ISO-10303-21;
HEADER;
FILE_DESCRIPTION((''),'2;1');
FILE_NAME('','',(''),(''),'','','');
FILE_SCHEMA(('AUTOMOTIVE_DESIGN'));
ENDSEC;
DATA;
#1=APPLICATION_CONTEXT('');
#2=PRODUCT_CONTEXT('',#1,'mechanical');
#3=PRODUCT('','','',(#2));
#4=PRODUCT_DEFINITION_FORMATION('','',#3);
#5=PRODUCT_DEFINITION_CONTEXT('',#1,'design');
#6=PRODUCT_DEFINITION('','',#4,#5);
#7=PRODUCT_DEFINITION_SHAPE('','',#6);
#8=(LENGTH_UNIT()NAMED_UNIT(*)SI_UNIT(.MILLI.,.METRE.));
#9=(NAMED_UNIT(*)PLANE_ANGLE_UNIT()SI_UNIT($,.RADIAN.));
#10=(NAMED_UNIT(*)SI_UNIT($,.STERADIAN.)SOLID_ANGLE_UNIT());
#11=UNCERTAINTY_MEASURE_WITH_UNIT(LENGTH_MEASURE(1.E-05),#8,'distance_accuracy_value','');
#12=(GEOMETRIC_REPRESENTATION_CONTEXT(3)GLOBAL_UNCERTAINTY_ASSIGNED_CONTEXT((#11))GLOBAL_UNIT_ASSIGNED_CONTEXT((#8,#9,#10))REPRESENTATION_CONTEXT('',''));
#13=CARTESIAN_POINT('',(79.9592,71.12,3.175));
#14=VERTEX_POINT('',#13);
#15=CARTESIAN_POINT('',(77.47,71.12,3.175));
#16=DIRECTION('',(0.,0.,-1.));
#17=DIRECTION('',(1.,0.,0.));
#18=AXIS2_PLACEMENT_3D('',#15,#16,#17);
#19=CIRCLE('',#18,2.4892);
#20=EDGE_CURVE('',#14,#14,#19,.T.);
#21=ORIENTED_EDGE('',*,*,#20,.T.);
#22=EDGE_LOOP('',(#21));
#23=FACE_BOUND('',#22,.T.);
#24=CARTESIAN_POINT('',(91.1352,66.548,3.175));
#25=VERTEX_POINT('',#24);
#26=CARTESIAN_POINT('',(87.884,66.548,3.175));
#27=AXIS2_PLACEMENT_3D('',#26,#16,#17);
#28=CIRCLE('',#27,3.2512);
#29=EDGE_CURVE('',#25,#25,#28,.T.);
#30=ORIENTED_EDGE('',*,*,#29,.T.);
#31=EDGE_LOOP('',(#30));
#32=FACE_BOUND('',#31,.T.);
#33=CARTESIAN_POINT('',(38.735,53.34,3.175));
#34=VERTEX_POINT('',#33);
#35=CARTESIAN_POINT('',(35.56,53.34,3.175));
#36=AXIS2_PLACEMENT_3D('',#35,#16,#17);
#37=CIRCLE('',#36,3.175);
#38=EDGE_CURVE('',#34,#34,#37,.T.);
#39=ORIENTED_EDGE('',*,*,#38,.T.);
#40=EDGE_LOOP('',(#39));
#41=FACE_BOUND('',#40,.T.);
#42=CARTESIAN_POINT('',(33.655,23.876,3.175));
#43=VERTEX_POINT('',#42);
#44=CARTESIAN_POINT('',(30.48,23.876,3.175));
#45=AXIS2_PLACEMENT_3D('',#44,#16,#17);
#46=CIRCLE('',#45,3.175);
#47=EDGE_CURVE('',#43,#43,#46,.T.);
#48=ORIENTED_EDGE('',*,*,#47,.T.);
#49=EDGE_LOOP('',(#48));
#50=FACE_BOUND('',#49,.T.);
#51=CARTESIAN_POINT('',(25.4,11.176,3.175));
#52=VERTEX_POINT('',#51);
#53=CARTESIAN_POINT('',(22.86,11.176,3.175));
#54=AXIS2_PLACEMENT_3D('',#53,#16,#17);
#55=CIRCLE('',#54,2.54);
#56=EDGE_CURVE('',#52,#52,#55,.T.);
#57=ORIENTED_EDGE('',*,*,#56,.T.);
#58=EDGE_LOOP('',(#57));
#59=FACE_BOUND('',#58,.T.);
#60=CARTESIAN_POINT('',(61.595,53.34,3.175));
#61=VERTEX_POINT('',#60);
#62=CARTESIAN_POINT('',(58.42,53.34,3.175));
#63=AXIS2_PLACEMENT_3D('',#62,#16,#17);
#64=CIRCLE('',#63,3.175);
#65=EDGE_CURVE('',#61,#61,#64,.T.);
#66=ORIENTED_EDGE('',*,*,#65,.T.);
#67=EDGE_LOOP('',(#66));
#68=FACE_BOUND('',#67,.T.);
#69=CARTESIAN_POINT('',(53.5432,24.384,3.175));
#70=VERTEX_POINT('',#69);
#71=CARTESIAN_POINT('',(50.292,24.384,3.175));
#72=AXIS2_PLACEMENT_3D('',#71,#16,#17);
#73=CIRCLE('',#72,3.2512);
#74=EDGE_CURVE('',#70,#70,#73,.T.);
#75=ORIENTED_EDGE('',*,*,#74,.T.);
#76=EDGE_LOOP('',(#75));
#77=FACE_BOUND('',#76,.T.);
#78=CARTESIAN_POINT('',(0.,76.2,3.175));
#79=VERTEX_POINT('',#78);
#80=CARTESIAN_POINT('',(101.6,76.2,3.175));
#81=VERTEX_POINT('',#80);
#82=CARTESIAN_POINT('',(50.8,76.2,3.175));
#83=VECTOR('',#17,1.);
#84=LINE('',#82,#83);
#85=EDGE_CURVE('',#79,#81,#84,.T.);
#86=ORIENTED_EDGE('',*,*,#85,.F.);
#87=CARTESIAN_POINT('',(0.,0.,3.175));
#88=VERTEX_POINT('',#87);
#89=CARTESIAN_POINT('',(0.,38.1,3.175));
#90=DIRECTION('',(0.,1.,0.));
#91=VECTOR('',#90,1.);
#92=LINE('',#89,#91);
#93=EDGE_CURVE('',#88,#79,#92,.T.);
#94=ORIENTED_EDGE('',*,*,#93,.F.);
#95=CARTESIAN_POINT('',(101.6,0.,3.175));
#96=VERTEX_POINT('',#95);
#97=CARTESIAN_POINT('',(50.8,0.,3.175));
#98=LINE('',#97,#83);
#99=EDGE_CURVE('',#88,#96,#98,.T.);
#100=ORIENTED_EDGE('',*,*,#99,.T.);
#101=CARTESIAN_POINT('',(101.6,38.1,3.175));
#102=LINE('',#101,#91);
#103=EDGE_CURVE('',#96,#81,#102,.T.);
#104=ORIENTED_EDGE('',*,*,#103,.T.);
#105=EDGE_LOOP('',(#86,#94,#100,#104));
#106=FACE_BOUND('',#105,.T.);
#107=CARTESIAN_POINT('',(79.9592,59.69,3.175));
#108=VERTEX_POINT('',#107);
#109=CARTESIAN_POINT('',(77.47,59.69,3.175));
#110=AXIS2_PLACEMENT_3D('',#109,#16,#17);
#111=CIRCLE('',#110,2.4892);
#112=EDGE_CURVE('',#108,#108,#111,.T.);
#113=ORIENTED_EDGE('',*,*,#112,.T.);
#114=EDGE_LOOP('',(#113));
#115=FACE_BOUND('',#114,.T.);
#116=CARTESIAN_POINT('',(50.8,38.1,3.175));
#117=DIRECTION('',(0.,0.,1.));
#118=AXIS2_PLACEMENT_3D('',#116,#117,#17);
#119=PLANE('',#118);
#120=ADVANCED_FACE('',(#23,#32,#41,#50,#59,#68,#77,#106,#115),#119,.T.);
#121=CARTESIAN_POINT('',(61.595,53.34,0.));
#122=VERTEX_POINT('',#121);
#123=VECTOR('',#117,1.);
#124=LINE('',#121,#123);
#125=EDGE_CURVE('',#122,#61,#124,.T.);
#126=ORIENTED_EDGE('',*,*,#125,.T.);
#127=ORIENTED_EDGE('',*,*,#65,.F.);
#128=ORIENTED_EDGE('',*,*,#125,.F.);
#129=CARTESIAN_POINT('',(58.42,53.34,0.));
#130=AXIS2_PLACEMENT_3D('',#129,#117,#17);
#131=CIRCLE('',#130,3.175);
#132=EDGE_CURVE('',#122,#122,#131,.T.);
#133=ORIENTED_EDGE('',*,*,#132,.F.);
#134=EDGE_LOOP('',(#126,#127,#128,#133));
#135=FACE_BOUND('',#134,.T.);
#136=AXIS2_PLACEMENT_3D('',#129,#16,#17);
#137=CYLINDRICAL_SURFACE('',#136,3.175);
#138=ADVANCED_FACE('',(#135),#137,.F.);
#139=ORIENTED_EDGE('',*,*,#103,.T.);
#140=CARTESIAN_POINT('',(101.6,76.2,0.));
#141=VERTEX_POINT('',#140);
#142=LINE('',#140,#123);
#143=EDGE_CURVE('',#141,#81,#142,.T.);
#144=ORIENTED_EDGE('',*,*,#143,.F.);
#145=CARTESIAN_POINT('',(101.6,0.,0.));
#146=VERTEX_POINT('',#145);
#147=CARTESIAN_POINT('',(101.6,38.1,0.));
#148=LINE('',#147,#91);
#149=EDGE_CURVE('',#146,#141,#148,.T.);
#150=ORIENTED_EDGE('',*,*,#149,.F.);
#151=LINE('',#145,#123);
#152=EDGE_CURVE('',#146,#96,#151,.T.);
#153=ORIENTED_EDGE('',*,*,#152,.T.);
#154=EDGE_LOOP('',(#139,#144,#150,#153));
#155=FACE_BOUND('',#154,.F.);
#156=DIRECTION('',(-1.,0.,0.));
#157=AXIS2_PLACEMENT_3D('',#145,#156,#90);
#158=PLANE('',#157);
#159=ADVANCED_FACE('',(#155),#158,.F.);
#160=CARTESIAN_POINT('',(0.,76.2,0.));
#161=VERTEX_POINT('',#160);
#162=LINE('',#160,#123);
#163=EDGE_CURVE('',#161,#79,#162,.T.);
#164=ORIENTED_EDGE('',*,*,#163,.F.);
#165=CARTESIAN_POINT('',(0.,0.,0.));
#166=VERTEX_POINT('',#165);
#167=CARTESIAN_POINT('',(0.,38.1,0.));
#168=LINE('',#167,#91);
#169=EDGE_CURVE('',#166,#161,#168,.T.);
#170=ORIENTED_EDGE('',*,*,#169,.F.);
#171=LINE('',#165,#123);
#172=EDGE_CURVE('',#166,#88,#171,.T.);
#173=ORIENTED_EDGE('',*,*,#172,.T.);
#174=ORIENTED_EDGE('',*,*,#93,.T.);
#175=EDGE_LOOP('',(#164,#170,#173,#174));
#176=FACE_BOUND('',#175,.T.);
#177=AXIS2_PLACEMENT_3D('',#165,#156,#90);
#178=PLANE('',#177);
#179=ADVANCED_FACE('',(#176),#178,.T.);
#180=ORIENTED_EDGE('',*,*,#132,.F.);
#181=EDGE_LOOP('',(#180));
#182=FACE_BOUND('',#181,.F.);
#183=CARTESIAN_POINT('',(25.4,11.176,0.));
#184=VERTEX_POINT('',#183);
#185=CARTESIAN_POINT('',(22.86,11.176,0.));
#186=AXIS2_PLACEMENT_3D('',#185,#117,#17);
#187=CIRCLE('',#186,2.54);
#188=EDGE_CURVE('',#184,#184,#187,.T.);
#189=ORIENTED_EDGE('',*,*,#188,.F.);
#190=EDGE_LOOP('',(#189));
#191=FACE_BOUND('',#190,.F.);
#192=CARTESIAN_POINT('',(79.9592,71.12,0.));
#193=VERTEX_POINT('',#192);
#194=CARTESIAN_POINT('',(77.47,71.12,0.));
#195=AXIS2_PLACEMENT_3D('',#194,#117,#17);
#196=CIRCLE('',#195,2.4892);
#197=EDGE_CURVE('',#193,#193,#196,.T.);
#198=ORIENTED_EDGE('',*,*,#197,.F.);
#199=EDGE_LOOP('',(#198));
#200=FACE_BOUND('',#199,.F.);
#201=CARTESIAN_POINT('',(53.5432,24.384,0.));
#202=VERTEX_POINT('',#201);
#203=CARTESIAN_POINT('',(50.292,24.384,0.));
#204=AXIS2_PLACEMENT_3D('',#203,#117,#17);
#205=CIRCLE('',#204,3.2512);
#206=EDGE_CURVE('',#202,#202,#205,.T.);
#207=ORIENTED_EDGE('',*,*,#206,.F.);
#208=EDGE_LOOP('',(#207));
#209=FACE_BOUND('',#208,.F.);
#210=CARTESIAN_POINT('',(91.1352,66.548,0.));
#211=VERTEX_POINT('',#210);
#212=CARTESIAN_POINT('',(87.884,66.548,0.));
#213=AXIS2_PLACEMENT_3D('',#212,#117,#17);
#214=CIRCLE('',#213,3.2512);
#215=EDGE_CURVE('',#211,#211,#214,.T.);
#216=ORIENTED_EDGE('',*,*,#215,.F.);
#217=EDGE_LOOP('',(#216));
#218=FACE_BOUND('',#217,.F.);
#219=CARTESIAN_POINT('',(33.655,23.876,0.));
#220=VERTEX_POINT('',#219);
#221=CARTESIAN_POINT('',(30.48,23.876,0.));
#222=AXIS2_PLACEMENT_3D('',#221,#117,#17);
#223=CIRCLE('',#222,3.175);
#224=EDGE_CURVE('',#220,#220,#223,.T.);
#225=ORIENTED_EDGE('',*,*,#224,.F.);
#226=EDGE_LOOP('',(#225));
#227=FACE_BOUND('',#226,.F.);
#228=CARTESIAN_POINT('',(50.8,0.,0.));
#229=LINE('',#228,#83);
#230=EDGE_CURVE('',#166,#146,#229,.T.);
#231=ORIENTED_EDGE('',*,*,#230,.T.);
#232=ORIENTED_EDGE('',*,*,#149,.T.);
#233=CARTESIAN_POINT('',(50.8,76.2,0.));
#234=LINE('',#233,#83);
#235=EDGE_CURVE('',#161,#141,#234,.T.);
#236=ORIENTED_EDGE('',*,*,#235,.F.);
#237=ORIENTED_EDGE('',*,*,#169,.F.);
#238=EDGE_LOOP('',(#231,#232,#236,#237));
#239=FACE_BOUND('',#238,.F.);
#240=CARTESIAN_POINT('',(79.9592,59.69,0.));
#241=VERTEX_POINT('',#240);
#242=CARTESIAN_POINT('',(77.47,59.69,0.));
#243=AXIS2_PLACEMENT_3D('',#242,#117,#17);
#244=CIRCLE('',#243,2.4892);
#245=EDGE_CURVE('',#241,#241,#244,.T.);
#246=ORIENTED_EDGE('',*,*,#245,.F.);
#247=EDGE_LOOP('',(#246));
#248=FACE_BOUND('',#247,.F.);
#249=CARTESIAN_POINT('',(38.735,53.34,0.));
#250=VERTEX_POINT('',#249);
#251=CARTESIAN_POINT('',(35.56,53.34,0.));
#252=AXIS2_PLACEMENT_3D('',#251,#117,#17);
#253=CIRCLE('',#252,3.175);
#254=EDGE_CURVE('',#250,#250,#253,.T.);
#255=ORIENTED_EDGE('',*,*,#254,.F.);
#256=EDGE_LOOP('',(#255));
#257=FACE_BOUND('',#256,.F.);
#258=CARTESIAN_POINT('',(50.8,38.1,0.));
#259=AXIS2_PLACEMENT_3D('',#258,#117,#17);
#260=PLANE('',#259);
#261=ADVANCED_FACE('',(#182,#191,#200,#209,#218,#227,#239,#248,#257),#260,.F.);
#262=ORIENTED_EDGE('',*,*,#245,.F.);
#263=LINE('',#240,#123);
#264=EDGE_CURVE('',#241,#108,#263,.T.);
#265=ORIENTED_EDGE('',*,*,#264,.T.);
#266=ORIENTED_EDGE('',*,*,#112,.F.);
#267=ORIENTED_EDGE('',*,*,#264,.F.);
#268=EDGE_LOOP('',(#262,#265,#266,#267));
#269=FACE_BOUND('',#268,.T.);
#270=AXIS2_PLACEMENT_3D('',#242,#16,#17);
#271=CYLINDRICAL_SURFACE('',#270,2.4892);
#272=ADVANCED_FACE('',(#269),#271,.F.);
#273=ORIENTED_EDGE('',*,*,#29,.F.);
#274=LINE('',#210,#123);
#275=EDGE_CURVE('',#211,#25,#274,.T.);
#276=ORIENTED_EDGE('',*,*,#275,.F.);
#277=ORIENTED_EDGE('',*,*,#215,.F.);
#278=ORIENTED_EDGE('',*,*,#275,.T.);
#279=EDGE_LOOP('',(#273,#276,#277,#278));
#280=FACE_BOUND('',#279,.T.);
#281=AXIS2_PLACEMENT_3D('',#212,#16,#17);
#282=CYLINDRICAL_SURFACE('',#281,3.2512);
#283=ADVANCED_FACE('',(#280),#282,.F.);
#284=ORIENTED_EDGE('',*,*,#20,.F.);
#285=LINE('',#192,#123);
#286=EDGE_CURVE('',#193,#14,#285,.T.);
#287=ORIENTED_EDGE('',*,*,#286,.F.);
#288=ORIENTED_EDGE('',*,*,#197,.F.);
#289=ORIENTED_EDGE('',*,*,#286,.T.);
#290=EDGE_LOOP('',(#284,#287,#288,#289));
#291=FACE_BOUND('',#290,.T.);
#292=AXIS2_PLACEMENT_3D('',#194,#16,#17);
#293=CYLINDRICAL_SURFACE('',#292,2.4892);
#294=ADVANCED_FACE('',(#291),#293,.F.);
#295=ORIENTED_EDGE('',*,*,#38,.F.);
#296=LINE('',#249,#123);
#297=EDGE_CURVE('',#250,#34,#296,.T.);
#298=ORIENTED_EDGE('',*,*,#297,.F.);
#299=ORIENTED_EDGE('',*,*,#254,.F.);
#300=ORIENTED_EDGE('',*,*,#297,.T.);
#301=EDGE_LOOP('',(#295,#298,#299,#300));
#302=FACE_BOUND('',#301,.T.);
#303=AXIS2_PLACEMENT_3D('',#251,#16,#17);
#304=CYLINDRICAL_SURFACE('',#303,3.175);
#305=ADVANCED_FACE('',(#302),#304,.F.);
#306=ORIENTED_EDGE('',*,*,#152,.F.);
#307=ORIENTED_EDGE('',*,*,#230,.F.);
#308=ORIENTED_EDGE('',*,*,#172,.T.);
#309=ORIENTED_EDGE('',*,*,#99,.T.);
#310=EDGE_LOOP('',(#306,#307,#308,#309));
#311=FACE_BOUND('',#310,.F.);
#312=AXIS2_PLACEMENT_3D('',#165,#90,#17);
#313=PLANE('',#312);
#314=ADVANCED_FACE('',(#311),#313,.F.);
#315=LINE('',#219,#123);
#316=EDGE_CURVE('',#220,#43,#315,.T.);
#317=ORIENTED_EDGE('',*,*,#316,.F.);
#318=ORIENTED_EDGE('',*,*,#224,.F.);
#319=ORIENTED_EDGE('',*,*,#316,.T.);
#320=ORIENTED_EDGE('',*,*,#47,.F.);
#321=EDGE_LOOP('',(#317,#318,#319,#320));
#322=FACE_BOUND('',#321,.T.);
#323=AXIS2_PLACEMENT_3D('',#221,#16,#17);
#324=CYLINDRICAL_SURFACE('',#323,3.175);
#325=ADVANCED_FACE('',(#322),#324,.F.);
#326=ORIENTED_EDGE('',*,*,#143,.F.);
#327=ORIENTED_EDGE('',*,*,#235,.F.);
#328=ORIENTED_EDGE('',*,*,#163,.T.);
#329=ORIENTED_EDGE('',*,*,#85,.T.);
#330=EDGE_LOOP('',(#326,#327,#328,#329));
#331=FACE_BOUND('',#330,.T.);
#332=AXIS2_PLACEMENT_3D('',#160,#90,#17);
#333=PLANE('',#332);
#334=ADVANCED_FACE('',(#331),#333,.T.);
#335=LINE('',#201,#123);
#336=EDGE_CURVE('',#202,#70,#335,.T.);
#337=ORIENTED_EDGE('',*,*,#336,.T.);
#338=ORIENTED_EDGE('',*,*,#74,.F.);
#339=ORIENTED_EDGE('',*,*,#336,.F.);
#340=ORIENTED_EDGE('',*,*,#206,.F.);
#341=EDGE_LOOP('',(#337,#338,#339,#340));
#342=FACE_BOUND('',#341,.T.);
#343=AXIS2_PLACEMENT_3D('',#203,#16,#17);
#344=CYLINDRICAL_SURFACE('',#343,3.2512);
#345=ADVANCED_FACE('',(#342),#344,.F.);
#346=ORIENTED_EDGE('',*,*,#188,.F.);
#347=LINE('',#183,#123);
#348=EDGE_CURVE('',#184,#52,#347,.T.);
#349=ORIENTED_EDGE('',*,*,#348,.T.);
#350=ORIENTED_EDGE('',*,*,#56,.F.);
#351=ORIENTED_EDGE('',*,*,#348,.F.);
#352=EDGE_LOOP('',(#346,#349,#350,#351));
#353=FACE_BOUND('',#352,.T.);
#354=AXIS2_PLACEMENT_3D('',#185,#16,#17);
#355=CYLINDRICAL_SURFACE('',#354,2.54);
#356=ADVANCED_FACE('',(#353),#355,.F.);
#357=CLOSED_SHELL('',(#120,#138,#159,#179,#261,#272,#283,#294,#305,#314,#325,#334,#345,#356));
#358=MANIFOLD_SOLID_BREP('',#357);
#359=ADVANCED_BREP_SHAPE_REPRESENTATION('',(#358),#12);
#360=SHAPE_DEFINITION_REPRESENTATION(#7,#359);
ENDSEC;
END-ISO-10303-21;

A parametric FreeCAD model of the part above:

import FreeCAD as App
import Part
import Sketcher

V = App.Vector
Q = App.Units.Quantity

doc = App.newDocument("Part")
params = doc.addObject("Spreadsheet::Sheet", "Params")
for row, (alias, value) in enumerate([
    ("sketch1_width", "4 in"),
    ("sketch1_height", "3 in"),
    ("pad1_length", "0.125 in"),
    ("sketch2_diameter", "0.2 in"),
    ("sketch2_diameter2", "0.25 in"),
    ("sketch2_diameter3", "0.256 in"),
    ("sketch2_diameter4", "0.196 in"),
], start=1):
    params.set(f"A{row}", alias)
    params.set(f"B{row}", "=" + value)
    params.setAlias(f"B{row}", alias)

body = doc.addObject("PartDesign::Body", "Body")

# Sketch on XY plane
sketch1 = body.newObject("Sketcher::SketchObject", "Sketch")
sketch1.AttachmentSupport = (doc.getObject("XY_Plane"), [""])
sketch1.MapMode = "FlatFace"
sketch1.addGeometry([
    Part.LineSegment(V(0, 76.2, 0), V(0, 0, 0)),
    Part.LineSegment(V(0, 0, 0), V(101.6, 0, 0)),
    Part.LineSegment(V(101.6, 0, 0), V(101.6, 76.2, 0)),
    Part.LineSegment(V(101.6, 76.2, 0), V(0, 76.2, 0)),
], False)
sketch1.addConstraint([
    Sketcher.Constraint("Coincident", 0, 2, 1, 1),
    Sketcher.Constraint("Coincident", 1, 2, 2, 1),
    Sketcher.Constraint("Coincident", 2, 2, 3, 1),
    Sketcher.Constraint("Coincident", 3, 2, 0, 1),
    Sketcher.Constraint("Vertical", 0),
    Sketcher.Constraint("Horizontal", 1),
    Sketcher.Constraint("Vertical", 2),
    Sketcher.Constraint("Horizontal", 3),
    Sketcher.Constraint("Coincident", 0, 2, -1, 1),
    Sketcher.Constraint("DistanceX", 1, 1, 1, 2, Q("4 in")),
    Sketcher.Constraint("DistanceY", 0, 2, 0, 1, Q("3 in")),
])
sketch1.setExpression("Constraints[9]", "Params.sketch1_width")
sketch1.setExpression("Constraints[10]", "Params.sketch1_height")
pad1 = body.newObject("PartDesign::Pad", "Pad")
pad1.Profile = sketch1
pad1.setExpression("Length", "Params.pad1_length")

# Sketch on XY plane
sketch2 = body.newObject("Sketcher::SketchObject", "Sketch001")
sketch2.AttachmentSupport = (doc.getObject("XY_Plane"), [""])
sketch2.MapMode = "FlatFace"
sketch2.addGeometry([
    Part.Circle(V(22.86, 11.176, 0), V(0, 0, 1), 2.54),  # 0
    Part.Circle(V(30.48, 23.876, 0), V(0, 0, 1), 3.175),  # 1
    Part.Circle(V(35.56, 53.34, 0), V(0, 0, 1), 3.175),  # 2
    Part.Circle(V(58.42, 53.34, 0), V(0, 0, 1), 3.175),  # 3
    Part.Circle(V(50.292, 24.384, 0), V(0, 0, 1), 3.2512),  # 4
    Part.Circle(V(87.884, 66.548, 0), V(0, 0, 1), 3.2512),  # 5
    Part.Circle(V(77.47, 71.12, 0), V(0, 0, 1), 2.4892),  # 6
    Part.Circle(V(77.47, 59.69, 0), V(0, 0, 1), 2.4892),  # 7
], False)
sketch2.addConstraint([
    Sketcher.Constraint("Equal", 1, 2),
    Sketcher.Constraint("Equal", 2, 3),
    Sketcher.Constraint("Equal", 4, 5),
    Sketcher.Constraint("Equal", 6, 7),
    Sketcher.Constraint("Horizontal", 2, 3, 3, 3),
    Sketcher.Constraint("Vertical", 6, 3, 7, 3),
    Sketcher.Constraint("Diameter", 0, Q("0.2 in")),
    Sketcher.Constraint("Diameter", 1, Q("0.25 in")),
    Sketcher.Constraint("Diameter", 4, Q("0.256 in")),
    Sketcher.Constraint("Diameter", 6, Q("0.196 in")),
    Sketcher.Constraint("DistanceX", -1, 1, 0, 3, Q("0.9 in")),
    Sketcher.Constraint("DistanceX", -1, 1, 1, 3, Q("1.2 in")),
    Sketcher.Constraint("DistanceX", -1, 1, 2, 3, Q("1.4 in")),
    Sketcher.Constraint("DistanceY", -1, 1, 2, 3, Q("2.1 in")),
    Sketcher.Constraint("DistanceX", -1, 1, 3, 3, Q("2.3 in")),
    Sketcher.Constraint("DistanceY", -1, 1, 6, 3, Q("2.8 in")),
    Sketcher.Constraint("DistanceY", 0, 3, 1, 3, Q("0.5 in")),
    Sketcher.Constraint("DistanceY", -1, 1, 0, 3, Q("0.44 in")),
    Sketcher.Constraint("DistanceX", -1, 1, 4, 3, Q("1.98 in")),
    Sketcher.Constraint("DistanceY", -1, 1, 4, 3, Q("0.96 in")),
    Sketcher.Constraint("DistanceX", -1, 1, 5, 3, Q("3.46 in")),
    Sketcher.Constraint("DistanceY", -1, 1, 5, 3, Q("2.62 in")),
    Sketcher.Constraint("DistanceX", -1, 1, 6, 3, Q("3.05 in")),
    Sketcher.Constraint("DistanceY", -1, 1, 7, 3, Q("2.35 in")),
])
sketch2.setExpression("Constraints[6]", "Params.sketch2_diameter")
sketch2.setExpression("Constraints[7]", "Params.sketch2_diameter2")
sketch2.setExpression("Constraints[8]", "Params.sketch2_diameter3")
sketch2.setExpression("Constraints[9]", "Params.sketch2_diameter4")
pocket1 = body.newObject("PartDesign::Pocket", "Pocket")
pocket1.Profile = sketch2
pocket1.Type = "ThroughAll"
pocket1.Reversed = True

doc.recompute()
